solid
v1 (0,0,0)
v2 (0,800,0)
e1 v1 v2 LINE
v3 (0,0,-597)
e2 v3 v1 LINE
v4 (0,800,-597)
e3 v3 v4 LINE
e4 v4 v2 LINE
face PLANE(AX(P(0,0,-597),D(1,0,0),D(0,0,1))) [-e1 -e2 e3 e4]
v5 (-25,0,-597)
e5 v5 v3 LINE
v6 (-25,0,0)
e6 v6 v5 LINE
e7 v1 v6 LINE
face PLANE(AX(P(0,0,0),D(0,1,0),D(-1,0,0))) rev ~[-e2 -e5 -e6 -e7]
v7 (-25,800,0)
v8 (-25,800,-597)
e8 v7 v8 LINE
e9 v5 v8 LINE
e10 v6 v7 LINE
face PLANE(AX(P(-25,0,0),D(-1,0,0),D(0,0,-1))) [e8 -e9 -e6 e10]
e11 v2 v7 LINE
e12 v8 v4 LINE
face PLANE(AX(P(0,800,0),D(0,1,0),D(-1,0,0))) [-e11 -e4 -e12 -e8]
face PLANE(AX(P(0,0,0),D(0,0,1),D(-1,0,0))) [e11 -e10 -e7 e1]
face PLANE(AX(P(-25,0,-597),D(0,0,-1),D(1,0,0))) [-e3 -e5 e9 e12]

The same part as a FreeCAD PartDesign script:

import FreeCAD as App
import Part
import Sketcher

V = App.Vector
Q = App.Units.Quantity

doc = App.newDocument("Part")
body = doc.addObject("PartDesign::Body", "Body")

sketch1 = doc.addObject("Sketcher::SketchObject", "Sketch")
body.addObject(sketch1)
sketch1.AttachmentSupport = (doc.XZ_Plane, [""])
sketch1.MapMode = "FlatFace"
sketch1.addGeometry(Part.LineSegment(V(-25, 0, 0), V(0, 0, 0)), False)
sketch1.addGeometry(Part.LineSegment(V(0, 0, 0), V(0, -597, 0)), False)
sketch1.addGeometry(Part.LineSegment(V(0, -597, 0), V(-25, -597, 0)), False)
sketch1.addGeometry(Part.LineSegment(V(-25, -597, 0), V(-25, 0, 0)), False)
sketch1.addConstraint(Sketcher.Constraint("Coincident", 0, 2, 1, 1))
sketch1.addConstraint(Sketcher.Constraint("Coincident", 1, 2, 2, 1))
sketch1.addConstraint(Sketcher.Constraint("Coincident", 2, 2, 3, 1))
sketch1.addConstraint(Sketcher.Constraint("Coincident", 3, 2, 0, 1))
sketch1.addConstraint(Sketcher.Constraint("Horizontal", 0))
sketch1.addConstraint(Sketcher.Constraint("Vertical", 1))
sketch1.addConstraint(Sketcher.Constraint("Horizontal", 2))
sketch1.addConstraint(Sketcher.Constraint("Vertical", 3))
sketch1.addConstraint(Sketcher.Constraint("Coincident", 0, 2, -1, 1))
sketch1.addConstraint(Sketcher.Constraint("DistanceX", 0, 1, 0, 2, Q("25 mm")))
sketch1.addConstraint(Sketcher.Constraint("DistanceY", 1, 2, 1, 1, Q("597 mm")))
pad1 = doc.addObject("PartDesign::Pad", "Pad")
body.addObject(pad1)
pad1.Profile = sketch1
pad1.Length = 800
pad1.Reversed = True

doc.recompute()
